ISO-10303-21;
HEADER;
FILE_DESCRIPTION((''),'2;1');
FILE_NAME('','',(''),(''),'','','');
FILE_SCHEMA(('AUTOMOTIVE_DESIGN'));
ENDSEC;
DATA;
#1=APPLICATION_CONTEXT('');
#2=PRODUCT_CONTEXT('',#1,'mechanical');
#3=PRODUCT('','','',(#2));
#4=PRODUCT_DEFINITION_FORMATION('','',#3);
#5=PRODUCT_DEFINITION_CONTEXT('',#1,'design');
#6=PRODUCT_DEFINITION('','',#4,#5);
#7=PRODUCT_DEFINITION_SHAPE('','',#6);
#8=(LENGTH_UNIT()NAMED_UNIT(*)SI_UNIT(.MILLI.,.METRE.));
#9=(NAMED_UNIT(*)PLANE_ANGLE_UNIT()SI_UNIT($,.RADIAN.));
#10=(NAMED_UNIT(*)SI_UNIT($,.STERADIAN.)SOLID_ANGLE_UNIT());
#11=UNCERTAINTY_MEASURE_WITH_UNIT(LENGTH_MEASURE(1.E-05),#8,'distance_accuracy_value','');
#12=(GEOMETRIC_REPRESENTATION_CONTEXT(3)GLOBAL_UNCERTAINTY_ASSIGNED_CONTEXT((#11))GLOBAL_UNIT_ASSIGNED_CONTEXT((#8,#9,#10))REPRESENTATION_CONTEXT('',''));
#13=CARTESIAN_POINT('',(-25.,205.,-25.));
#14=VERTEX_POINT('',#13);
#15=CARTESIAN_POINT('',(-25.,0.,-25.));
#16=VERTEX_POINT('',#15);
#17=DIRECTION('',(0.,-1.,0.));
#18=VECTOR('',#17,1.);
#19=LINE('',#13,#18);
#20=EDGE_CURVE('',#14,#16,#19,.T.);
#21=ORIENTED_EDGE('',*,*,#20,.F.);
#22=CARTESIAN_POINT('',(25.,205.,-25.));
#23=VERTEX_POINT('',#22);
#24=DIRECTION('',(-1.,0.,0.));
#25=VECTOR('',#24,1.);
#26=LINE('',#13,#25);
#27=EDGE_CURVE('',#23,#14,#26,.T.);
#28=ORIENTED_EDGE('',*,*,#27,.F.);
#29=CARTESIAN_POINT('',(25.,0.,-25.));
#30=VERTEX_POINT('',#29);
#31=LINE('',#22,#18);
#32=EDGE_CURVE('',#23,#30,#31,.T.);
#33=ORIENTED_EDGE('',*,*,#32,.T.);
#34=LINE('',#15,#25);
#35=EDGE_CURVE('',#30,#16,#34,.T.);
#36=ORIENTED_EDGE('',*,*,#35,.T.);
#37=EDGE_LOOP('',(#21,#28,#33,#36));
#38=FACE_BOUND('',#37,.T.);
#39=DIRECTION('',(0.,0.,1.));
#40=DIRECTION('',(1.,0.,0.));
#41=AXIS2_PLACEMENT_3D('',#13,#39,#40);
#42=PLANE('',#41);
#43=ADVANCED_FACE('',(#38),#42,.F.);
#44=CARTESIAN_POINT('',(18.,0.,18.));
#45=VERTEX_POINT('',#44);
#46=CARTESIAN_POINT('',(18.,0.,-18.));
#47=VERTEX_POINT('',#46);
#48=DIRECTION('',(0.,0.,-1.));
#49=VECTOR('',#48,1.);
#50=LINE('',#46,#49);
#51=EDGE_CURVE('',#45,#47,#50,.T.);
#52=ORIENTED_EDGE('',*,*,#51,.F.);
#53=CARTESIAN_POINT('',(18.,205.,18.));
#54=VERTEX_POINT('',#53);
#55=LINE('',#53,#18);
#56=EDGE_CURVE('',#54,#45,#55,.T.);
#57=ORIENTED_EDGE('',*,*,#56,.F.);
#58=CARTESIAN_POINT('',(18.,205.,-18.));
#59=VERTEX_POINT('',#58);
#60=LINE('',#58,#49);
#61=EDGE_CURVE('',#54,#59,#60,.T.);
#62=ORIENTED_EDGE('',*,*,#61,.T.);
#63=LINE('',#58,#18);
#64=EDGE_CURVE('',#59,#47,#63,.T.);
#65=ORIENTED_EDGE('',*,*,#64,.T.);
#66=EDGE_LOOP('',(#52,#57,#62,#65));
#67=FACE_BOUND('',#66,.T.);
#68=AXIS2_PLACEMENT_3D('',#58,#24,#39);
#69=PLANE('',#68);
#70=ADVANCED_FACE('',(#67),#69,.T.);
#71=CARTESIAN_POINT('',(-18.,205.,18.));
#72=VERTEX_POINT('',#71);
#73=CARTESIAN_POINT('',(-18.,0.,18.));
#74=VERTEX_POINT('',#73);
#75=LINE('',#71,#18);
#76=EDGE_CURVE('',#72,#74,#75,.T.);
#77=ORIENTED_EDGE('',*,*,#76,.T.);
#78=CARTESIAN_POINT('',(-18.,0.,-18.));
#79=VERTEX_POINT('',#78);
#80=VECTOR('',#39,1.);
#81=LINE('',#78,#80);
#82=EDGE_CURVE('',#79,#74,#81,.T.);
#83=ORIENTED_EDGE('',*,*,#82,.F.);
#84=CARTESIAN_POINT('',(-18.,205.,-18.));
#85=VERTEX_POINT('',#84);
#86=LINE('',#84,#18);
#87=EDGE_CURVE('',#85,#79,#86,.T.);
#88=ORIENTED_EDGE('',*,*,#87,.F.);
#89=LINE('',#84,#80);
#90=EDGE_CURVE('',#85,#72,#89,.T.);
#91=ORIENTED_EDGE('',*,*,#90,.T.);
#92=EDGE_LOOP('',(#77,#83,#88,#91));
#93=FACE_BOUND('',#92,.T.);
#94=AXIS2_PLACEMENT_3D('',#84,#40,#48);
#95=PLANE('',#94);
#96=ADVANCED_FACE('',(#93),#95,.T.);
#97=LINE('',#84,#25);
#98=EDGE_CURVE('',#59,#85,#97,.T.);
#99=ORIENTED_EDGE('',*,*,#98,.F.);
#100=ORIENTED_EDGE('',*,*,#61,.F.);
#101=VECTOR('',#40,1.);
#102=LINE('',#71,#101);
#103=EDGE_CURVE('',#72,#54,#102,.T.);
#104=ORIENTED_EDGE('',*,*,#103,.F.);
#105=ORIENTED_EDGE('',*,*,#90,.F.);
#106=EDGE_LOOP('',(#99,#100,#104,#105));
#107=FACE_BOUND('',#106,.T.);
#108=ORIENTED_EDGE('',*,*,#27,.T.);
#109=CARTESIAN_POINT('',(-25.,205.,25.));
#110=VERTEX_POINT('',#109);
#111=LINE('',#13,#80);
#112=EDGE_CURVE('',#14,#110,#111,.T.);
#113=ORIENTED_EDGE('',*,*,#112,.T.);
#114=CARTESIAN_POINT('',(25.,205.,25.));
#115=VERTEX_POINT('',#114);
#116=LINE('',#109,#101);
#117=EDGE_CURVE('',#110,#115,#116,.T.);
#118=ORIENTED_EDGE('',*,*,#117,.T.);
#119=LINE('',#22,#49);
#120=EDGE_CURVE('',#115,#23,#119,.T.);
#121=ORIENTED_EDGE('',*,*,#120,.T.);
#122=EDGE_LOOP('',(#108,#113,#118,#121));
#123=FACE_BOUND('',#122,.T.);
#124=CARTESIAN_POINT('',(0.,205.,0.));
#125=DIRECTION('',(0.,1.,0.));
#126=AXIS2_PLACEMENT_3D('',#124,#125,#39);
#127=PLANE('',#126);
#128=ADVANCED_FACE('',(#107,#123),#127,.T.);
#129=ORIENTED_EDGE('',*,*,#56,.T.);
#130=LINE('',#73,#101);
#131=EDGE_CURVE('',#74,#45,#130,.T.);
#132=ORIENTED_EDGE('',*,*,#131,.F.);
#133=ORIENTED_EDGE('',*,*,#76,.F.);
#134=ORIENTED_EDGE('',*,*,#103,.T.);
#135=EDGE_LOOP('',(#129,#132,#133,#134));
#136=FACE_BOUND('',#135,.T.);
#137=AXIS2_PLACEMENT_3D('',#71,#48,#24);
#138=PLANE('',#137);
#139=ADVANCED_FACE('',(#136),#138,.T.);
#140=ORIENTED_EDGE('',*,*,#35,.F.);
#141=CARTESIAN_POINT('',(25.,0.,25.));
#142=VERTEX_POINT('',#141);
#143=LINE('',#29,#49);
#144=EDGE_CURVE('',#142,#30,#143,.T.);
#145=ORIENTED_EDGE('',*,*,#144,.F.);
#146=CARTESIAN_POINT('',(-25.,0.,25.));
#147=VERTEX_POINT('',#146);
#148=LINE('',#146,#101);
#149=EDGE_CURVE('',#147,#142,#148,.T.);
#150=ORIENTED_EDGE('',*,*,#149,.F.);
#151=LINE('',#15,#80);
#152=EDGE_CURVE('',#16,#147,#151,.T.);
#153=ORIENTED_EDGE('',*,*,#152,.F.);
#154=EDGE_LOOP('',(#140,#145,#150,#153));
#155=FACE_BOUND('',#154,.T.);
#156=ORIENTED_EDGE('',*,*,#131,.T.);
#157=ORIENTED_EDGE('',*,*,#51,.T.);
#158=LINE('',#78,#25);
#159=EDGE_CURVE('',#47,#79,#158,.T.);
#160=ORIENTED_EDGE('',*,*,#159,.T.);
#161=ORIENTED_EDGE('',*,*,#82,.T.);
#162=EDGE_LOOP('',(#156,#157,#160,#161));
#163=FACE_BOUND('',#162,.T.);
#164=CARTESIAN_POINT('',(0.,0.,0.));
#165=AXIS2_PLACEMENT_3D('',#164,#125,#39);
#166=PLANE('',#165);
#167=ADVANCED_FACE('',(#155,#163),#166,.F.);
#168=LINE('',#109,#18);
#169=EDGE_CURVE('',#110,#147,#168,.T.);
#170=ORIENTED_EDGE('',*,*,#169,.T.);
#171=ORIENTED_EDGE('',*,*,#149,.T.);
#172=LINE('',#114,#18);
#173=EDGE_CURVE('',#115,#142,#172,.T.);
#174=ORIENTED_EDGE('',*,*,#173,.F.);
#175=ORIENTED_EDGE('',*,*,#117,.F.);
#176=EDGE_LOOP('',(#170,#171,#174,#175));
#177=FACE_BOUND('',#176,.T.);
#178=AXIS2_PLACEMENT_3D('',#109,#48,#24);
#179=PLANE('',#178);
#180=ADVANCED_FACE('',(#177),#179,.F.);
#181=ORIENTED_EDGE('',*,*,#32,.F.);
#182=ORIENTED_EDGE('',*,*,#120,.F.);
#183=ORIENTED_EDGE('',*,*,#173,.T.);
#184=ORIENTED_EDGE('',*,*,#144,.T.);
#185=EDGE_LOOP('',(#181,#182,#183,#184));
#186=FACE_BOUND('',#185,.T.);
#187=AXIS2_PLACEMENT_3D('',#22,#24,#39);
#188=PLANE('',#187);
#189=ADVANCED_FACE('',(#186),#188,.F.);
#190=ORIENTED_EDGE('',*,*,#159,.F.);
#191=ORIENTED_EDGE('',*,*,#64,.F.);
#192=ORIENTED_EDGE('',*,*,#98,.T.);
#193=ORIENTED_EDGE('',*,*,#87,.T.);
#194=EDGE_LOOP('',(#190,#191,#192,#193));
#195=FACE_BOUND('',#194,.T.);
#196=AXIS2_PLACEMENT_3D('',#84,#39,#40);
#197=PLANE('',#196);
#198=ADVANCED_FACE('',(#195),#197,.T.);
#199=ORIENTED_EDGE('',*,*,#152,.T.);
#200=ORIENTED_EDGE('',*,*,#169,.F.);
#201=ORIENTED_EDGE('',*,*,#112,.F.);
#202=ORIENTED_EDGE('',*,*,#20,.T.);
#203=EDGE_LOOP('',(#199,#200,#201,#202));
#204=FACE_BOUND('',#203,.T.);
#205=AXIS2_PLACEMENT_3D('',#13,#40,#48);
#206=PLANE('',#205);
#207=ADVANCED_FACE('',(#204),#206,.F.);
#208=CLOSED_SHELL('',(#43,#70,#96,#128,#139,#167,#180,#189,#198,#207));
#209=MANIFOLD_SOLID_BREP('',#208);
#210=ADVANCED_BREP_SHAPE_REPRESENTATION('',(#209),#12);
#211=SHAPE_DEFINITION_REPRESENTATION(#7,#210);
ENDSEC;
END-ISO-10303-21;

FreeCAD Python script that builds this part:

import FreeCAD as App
import Part
import Sketcher
from FreeCAD import Vector
Q = App.Units.Quantity

doc = App.newDocument("Part")
body = doc.addObject("PartDesign::Body", "Body")

sketch1 = body.newObject("Sketcher::SketchObject", "Sketch")
sketch1.AttachmentSupport = (doc.getObject("XZ_Plane"), [""])
sketch1.MapMode = "FlatFace"
sketch1.addGeometry([
    Part.LineSegment(Vector(-25, -25, 0), Vector(-25, 25, 0)),
    Part.LineSegment(Vector(-25, 25, 0), Vector(25, 25, 0)),
    Part.LineSegment(Vector(25, 25, 0), Vector(25, -25, 0)),
    Part.LineSegment(Vector(25, -25, 0), Vector(-25, -25, 0)),
    Part.LineSegment(Vector(18, 18, 0), Vector(-18, 18, 0)),
    Part.LineSegment(Vector(-18, 18, 0), Vector(-18, -18, 0)),
    Part.LineSegment(Vector(-18, -18, 0), Vector(18, -18, 0)),
    Part.LineSegment(Vector(18, -18, 0), Vector(18, 18, 0)),
], False)
sketch1.addConstraint([
    Sketcher.Constraint("Coincident", 0, 2, 1, 1),
    Sketcher.Constraint("Coincident", 1, 2, 2, 1),
    Sketcher.Constraint("Coincident", 2, 2, 3, 1),
    Sketcher.Constraint("Coincident", 3, 2, 0, 1),
    Sketcher.Constraint("Coincident", 4, 2, 5, 1),
    Sketcher.Constraint("Coincident", 5, 2, 6, 1),
    Sketcher.Constraint("Coincident", 6, 2, 7, 1),
    Sketcher.Constraint("Coincident", 7, 2, 4, 1),
    Sketcher.Constraint("Vertical", 0),
    Sketcher.Constraint("Horizontal", 1),
    Sketcher.Constraint("Vertical", 2),
    Sketcher.Constraint("Horizontal", 3),
    Sketcher.Constraint("Horizontal", 4),
    Sketcher.Constraint("Vertical", 5),
    Sketcher.Constraint("Horizontal", 6),
    Sketcher.Constraint("Vertical", 7),
    Sketcher.Constraint("Symmetric", 0, 2, 2, 2, -1, 1),
    Sketcher.Constraint("Symmetric", 4, 2, 6, 2, -1, 1),
    Sketcher.Constraint("Equal", 3, 0),
    Sketcher.Constraint("Equal", 6, 5),
    Sketcher.Constraint("DistanceX", 1, 1, 1, 2, Q("50 mm")),
    Sketcher.Constraint("DistanceX", 4, 2, 4, 1, Q("36 mm")),
])
pad1 = body.newObject("PartDesign::Pad", "Pad")
pad1.Profile = sketch1
pad1.Length = 205
pad1.Reversed = True

doc.recompute()
